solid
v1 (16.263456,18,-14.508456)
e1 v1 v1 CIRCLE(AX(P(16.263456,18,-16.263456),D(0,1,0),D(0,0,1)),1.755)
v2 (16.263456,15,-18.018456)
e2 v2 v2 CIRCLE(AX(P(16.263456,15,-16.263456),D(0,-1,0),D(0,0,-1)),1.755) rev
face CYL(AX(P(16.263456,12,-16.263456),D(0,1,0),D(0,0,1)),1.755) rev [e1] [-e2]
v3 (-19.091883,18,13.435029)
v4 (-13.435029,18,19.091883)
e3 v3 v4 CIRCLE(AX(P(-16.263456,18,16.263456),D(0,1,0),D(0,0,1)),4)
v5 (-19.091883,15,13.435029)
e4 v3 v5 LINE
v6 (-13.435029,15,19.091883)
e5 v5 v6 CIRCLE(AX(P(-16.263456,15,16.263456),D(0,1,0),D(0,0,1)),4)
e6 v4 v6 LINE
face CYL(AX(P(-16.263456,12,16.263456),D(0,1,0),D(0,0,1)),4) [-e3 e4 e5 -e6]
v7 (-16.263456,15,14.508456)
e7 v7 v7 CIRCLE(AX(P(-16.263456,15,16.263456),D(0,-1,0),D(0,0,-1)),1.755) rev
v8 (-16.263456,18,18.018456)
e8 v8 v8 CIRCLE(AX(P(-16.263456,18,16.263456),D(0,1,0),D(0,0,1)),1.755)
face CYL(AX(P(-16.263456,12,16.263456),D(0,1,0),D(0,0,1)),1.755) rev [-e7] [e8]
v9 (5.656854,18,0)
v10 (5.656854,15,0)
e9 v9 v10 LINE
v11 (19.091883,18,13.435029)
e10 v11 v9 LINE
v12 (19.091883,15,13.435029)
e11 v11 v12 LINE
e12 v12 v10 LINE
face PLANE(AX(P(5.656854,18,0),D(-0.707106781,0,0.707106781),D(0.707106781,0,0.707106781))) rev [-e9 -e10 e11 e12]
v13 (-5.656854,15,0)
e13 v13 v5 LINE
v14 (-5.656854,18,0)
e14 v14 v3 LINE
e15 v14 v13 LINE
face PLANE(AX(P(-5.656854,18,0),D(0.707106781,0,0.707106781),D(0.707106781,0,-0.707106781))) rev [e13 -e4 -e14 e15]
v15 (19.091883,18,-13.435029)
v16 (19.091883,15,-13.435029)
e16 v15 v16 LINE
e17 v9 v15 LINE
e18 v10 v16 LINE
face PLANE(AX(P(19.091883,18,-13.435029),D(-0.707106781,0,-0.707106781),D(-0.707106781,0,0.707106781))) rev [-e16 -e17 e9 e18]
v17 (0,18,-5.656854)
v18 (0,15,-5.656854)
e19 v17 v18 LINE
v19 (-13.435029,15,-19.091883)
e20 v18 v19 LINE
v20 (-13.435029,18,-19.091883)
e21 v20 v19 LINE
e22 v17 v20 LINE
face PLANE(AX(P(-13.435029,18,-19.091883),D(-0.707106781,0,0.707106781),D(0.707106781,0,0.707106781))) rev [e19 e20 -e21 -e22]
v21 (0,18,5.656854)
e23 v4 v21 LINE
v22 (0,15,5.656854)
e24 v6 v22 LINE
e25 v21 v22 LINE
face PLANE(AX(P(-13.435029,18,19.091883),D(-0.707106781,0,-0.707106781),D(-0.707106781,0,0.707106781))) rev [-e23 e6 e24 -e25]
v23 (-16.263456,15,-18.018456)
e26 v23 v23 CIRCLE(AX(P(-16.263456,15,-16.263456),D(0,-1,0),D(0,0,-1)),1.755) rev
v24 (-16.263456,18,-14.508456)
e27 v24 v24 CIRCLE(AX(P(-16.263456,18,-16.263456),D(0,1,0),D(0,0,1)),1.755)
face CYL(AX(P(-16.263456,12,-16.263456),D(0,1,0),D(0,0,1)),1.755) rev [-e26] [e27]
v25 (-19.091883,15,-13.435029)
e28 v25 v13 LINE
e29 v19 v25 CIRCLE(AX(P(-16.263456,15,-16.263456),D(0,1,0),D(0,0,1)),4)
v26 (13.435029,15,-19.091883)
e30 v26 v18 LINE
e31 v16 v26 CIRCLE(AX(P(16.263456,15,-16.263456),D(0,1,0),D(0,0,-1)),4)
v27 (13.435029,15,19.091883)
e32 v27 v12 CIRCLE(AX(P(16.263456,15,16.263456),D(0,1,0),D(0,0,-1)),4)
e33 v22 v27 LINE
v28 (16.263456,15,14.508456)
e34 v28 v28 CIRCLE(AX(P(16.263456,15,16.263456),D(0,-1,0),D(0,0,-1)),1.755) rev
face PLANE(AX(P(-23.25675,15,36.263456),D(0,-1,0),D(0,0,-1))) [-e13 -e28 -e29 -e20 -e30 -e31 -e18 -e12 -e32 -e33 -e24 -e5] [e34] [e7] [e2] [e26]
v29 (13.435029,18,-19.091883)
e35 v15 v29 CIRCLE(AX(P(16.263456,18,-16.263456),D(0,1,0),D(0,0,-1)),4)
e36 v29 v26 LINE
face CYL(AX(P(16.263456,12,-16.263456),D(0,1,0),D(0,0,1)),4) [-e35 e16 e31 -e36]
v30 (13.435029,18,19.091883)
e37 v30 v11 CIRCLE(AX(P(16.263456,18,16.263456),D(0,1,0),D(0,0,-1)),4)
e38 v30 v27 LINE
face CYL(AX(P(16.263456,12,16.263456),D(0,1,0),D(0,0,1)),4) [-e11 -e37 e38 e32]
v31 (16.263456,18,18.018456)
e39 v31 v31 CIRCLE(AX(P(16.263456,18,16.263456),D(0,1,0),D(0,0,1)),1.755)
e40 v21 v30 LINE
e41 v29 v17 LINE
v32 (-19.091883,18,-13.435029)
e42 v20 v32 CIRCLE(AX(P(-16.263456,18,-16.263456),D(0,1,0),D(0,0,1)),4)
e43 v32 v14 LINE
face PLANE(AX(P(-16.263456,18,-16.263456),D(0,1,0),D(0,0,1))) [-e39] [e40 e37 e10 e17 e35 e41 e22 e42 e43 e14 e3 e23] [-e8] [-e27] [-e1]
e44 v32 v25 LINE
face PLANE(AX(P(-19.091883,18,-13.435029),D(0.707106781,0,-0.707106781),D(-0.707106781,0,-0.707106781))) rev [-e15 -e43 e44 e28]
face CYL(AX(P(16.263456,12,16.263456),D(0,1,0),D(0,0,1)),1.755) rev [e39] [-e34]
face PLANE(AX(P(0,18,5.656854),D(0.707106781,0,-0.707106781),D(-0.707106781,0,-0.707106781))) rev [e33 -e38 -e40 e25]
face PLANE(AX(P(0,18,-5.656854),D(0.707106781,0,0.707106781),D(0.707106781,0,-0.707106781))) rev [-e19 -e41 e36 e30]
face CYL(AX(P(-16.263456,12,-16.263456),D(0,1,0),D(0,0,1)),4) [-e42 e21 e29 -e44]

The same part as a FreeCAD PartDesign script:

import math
import FreeCAD as App
import Part
import Sketcher

V = App.Vector


def add_polygon(sketch, points):
    """Adds a closed chain of lines whose ends are joined by coincident constraints."""
    first, n = sketch.GeometryCount, len(points)
    for a, b in zip(points, points[1:] + points[:1]):
        sketch.addGeometry(Part.LineSegment(App.Vector(*a, 0), App.Vector(*b, 0)), False)
    for i in range(n):
        sketch.addConstraint(Sketcher.Constraint("Coincident", first + i, 2, first + (i + 1) % n, 1))

doc = App.newDocument("Part")
body = doc.addObject("PartDesign::Body", "Body")

# Sketch on XZ plane
sketch1 = doc.addObject("Sketcher::SketchObject", "Sketch")
body.addObject(sketch1)
sketch1.AttachmentSupport = (doc.XZ_Plane, [""])
sketch1.MapMode = "FlatFace"
sketch1.addGeometry(Part.Circle(V(0, 0, 0), V(0, 0, 1), 12), False)
sketch1.addGeometry(Part.Circle(V(0, 0, 0), V(0, 0, 1), 10), False)
sketch1.addConstraint(Sketcher.Constraint("Coincident", 0, 3, -1, 1))
sketch1.addConstraint(Sketcher.Constraint("Coincident", 1, 3, -1, 1))
sketch1.addConstraint(Sketcher.Constraint("Diameter", 0, 23.8))
sketch1.addConstraint(Sketcher.Constraint("Diameter", 1, 19.8))
pad1 = doc.addObject("PartDesign::Pad", "Pad")
body.addObject(pad1)
pad1.Profile = sketch1
pad1.Length = 15
pad1.Reversed = True

# Sketch on XZ plane
sketch2 = doc.addObject("Sketcher::SketchObject", "Sketch001")
body.addObject(sketch2)
sketch2.AttachmentSupport = (doc.XZ_Plane, [""])
sketch2.MapMode = "FlatFace"
sketch2.addGeometry(Part.Circle(V(0, 0, 0), V(0, 0, 1), 10), False)
sketch2.addConstraint(Sketcher.Constraint("Coincident", 0, 3, -1, 1))
sketch2.addConstraint(Sketcher.Constraint("Diameter", 0, 19.8))
pad2 = doc.addObject("PartDesign::Pad", "Pad001")
body.addObject(pad2)
pad2.Profile = sketch2
pad2.Length = 5.1
pad2.Reversed = True

# Sketch on YZ plane
sketch3 = doc.addObject("Sketcher::SketchObject", "Sketch002")
body.addObject(sketch3)
sketch3.AttachmentSupport = (doc.YZ_Plane, [""])
sketch3.MapMode = "FlatFace"
sketch3.addGeometry(Part.LineSegment(V(15, 0, 0), V(-5, 0, 0)), False)
sketch3.addGeometry(Part.ArcOfCircle(Part.Circle(V(5, 0, 0), V(0, 0, 1), 10), math.radians(180), math.radians(360)), False)
sketch3.addConstraint(Sketcher.Constraint("Coincident", 0, 1, 1, 2))
sketch3.addConstraint(Sketcher.Constraint("Coincident", 1, 1, 0, 2))
sketch3.addConstraint(Sketcher.Constraint("Horizontal", 0))
sketch3.addConstraint(Sketcher.Constraint("PointOnObject", 1, 3, -1))
sketch3.addConstraint(Sketcher.Constraint("PointOnObject", 0, 1, -1))
sketch3.addConstraint(Sketcher.Constraint("Radius", 1, 9.9))
sketch3.addConstraint(Sketcher.Constraint("DistanceX", -1, 1, 0, 1, 15.0))
groove = doc.addObject("PartDesign::Groove", "Groove")
body.addObject(groove)
groove.Profile = sketch3
groove.ReferenceAxis = (sketch3, ["H_Axis"])
groove.Angle = 360

# Sketch on XZ plane
sketch4 = doc.addObject("Sketcher::SketchObject", "Sketch003")
body.addObject(sketch4)
sketch4.AttachmentSupport = (doc.XZ_Plane, [""])
sketch4.MapMode = "FlatFace"
sketch4.AttachmentOffset = App.Placement(V(0, 0, -12), App.Rotation())
sketch4.addGeometry(Part.Circle(V(0, 0, 0), V(0, 0, 1), 19), False)
sketch4.addGeometry(Part.Circle(V(0, 0, 0), V(0, 0, 1), 12), False)
sketch4.addConstraint(Sketcher.Constraint("Coincident", 0, 3, -1, 1))
sketch4.addConstraint(Sketcher.Constraint("Coincident", 1, 3, -1, 1))
sketch4.addConstraint(Sketcher.Constraint("Diameter", 0, 38.0))
sketch4.addConstraint(Sketcher.Constraint("Diameter", 1, 23.8))
pad3 = doc.addObject("PartDesign::Pad", "Pad002")
body.addObject(pad3)
pad3.Profile = sketch4
pad3.Length = 3
pad3.Reversed = True

# Sketch on XZ plane
sketch5 = doc.addObject("Sketcher::SketchObject", "Sketch004")
body.addObject(sketch5)
sketch5.AttachmentSupport = (doc.XZ_Plane, [""])
sketch5.MapMode = "FlatFace"
sketch5.AttachmentOffset = App.Placement(V(0, 0, -15), App.Rotation())
sketch5.addGeometry(Part.Circle(V(0, -15.2, 0), V(0, 0, 1), 1.8), False)
sketch5.addGeometry(Part.Circle(V(-15.2, 0, 0), V(0, 0, 1), 1.8), False)
sketch5.addGeometry(Part.Circle(V(0, 15.2, 0), V(0, 0, 1), 1.8), False)
sketch5.addGeometry(Part.Circle(V(15.2, 0, 0), V(0, 0, 1), 1.8), False)
sketch5.addConstraint(Sketcher.Constraint("Equal", 0, 1))
sketch5.addConstraint(Sketcher.Constraint("Equal", 1, 2))
sketch5.addConstraint(Sketcher.Constraint("Equal", 2, 3))
sketch5.addConstraint(Sketcher.Constraint("Symmetric", 0, 3, 2, 3, -1, 1))
sketch5.addConstraint(Sketcher.Constraint("Symmetric", 1, 3, 3, 3, -1, 1))
sketch5.addConstraint(Sketcher.Constraint("PointOnObject", 0, 3, -2))
sketch5.addConstraint(Sketcher.Constraint("PointOnObject", 1, 3, -1))
sketch5.addConstraint(Sketcher.Constraint("Diameter", 0, 3.51))
sketch5.addConstraint(Sketcher.Constraint("DistanceY", 0, 3, 2, 3, 30.3))
sketch5.addConstraint(Sketcher.Constraint("DistanceX", 1, 3, 3, 3, 30.3))
pocket1 = doc.addObject("PartDesign::Pocket", "Pocket")
body.addObject(pocket1)
pocket1.Profile = sketch5
pocket1.Length = 3
pocket1.Reversed = True

# Sketch on YZ plane
sketch6 = doc.addObject("Sketcher::SketchObject", "Sketch005")
body.addObject(sketch6)
sketch6.AttachmentSupport = (doc.YZ_Plane, [""])
sketch6.MapMode = "FlatFace"
add_polygon(sketch6, [(12, 19), (-4, 19), (-4, -19), (12, -19)])  # lines 0-3
sketch6.addConstraint(Sketcher.Constraint("Horizontal", 0))
sketch6.addConstraint(Sketcher.Constraint("Vertical", 1))
sketch6.addConstraint(Sketcher.Constraint("Horizontal", 2))
sketch6.addConstraint(Sketcher.Constraint("Vertical", 3))
sketch6.addConstraint(Sketcher.Constraint("DistanceY", 1, 2, 1, 1, 38.0))
sketch6.addConstraint(Sketcher.Constraint("DistanceY", -1, 1, 0, 2, 19.0))
sketch6.addConstraint(Sketcher.Constraint("DistanceX", -1, 1, 2, 2, 12.0))
sketch6.addConstraint(Sketcher.Constraint("DistanceX", 0, 2, 0, 1, 16.079994))
pocket2 = doc.addObject("PartDesign::Pocket", "Pocket001")
body.addObject(pocket2)
pocket2.Profile = sketch6
pocket2.Type = "ThroughAll"
pocket2.Midplane = True

# Sketch on XZ plane
sketch7 = doc.addObject("Sketcher::SketchObject", "Sketch006")
body.addObject(sketch7)
sketch7.AttachmentSupport = (doc.XZ_Plane, [""])
sketch7.MapMode = "FlatFace"
sketch7.AttachmentOffset = App.Placement(V(0, 0, -12), App.Rotation())
sketch7.addGeometry(Part.Circle(V(0, 0, 0), V(0, 0, 1), 10), False)
sketch7.addConstraint(Sketcher.Constraint("Coincident", 0, 3, -1, 1))
sketch7.addConstraint(Sketcher.Constraint("Diameter", 0, 19.8))
pad4 = doc.addObject("PartDesign::Pad", "Pad003")
body.addObject(pad4)
pad4.Profile = sketch7
pad4.Length = 3
pad4.Reversed = True

# Sketch on XZ plane
sketch8 = doc.addObject("Sketcher::SketchObject", "Sketch007")
body.addObject(sketch8)
sketch8.AttachmentSupport = (doc.XZ_Plane, [""])
sketch8.MapMode = "FlatFace"
sketch8.AttachmentOffset = App.Placement(V(0, 0, -12), App.Rotation())
add_polygon(sketch8, [(-20, -20), (-20, 20), (20, 20), (20, -20)])  # lines 0-3
sketch8.addGeometry(Part.Circle(V(0, 0, 0), V(0, 0, 1), 19), False)  # 4
sketch8.addConstraint(Sketcher.Constraint("Vertical", 0))
sketch8.addConstraint(Sketcher.Constraint("Horizontal", 1))
sketch8.addConstraint(Sketcher.Constraint("Vertical", 2))
sketch8.addConstraint(Sketcher.Constraint("Horizontal", 3))
sketch8.addConstraint(Sketcher.Constraint("Coincident", 4, 3, -1, 1))
sketch8.addConstraint(Sketcher.Constraint("Symmetric", 0, 2, 2, 2, -1, 1))
sketch8.addConstraint(Sketcher.Constraint("Equal", 3, 0))
sketch8.addConstraint(Sketcher.Constraint("Diameter", 4, 38.0))
sketch8.addConstraint(Sketcher.Constraint("DistanceX", 1, 1, 1, 2, 40.0))
pad5 = doc.addObject("PartDesign::Pad", "Pad004")
body.addObject(pad5)
pad5.Profile = sketch8
pad5.Length = 3
pad5.Reversed = True

# Sketch on XZ plane
sketch9 = doc.addObject("Sketcher::SketchObject", "Sketch008")
body.addObject(sketch9)
sketch9.AttachmentSupport = (doc.XZ_Plane, [""])
sketch9.MapMode = "FlatFace"
sketch9.AttachmentOffset = App.Placement(V(0, 0, -15), App.Rotation())
add_polygon(sketch9, [(-30, -30), (-30, 30), (30, 30), (30, -30)])  # lines 0-3
add_polygon(sketch9, [(20, 20), (-20, 20), (-20, -20), (20, -20)])  # lines 4-7
sketch9.addConstraint(Sketcher.Constraint("Vertical", 0))
sketch9.addConstraint(Sketcher.Constraint("Horizontal", 1))
sketch9.addConstraint(Sketcher.Constraint("Vertical", 2))
sketch9.addConstraint(Sketcher.Constraint("Horizontal", 3))
sketch9.addConstraint(Sketcher.Constraint("Horizontal", 4))
sketch9.addConstraint(Sketcher.Constraint("Vertical", 5))
sketch9.addConstraint(Sketcher.Constraint("Horizontal", 6))
sketch9.addConstraint(Sketcher.Constraint("Vertical", 7))
sketch9.addConstraint(Sketcher.Constraint("Symmetric", 0, 2, 2, 2, -1, 1))
sketch9.addConstraint(Sketcher.Constraint("Symmetric", 4, 2, 6, 2, -1, 1))
sketch9.addConstraint(Sketcher.Constraint("Equal", 3, 0))
sketch9.addConstraint(Sketcher.Constraint("Equal", 6, 5))
sketch9.addConstraint(Sketcher.Constraint("DistanceX", 1, 1, 1, 2, 60.0))
sketch9.addConstraint(Sketcher.Constraint("DistanceX", 4, 2, 4, 1, 40.0))
pad6 = doc.addObject("PartDesign::Pad", "Pad005")
body.addObject(pad6)
pad6.Profile = sketch9
pad6.Length = 3

# Sketch on XZ plane
sketch10 = doc.addObject("Sketcher::SketchObject", "Sketch009")
body.addObject(sketch10)
sketch10.AttachmentSupport = (doc.XZ_Plane, [""])
sketch10.MapMode = "FlatFace"
sketch10.AttachmentOffset = App.Placement(V(0, 0, -15), App.Rotation())
sketch10.addGeometry(Part.Circle(V(-16.3, -16.3, 0), V(0, 0, 1), 1.8), False)
sketch10.addGeometry(Part.Circle(V(-16.3, 16.3, 0), V(0, 0, 1), 1.8), False)
sketch10.addGeometry(Part.Circle(V(16.3, -16.3, 0), V(0, 0, 1), 1.8), False)
sketch10.addGeometry(Part.Circle(V(16.3, 16.3, 0), V(0, 0, 1), 1.8), False)
sketch10.addConstraint(Sketcher.Constraint("Equal", 0, 1))
sketch10.addConstraint(Sketcher.Constraint("Equal", 1, 2))
sketch10.addConstraint(Sketcher.Constraint("Equal", 2, 3))
sketch10.addConstraint(Sketcher.Constraint("Symmetric", 1, 3, 2, 3, -1, 1))
sketch10.addConstraint(Sketcher.Constraint("Symmetric", 0, 3, 3, 3, -1, 1))
sketch10.addConstraint(Sketcher.Constraint("Symmetric", 0, 3, 2, 3, -2))
sketch10.addConstraint(Sketcher.Constraint("Diameter", 0, 3.51))
sketch10.addConstraint(Sketcher.Constraint("DistanceY", 0, 3, 1, 3, 32.526912))
sketch10.addConstraint(Sketcher.Constraint("DistanceX", 0, 3, 2, 3, 32.526912))
pocket3 = doc.addObject("PartDesign::Pocket", "Pocket002")
body.addObject(pocket3)
pocket3.Profile = sketch10
pocket3.Length = 3
pocket3.Reversed = True

# Sketch on XZ plane
sketch11 = doc.addObject("Sketcher::SketchObject", "Sketch010")
body.addObject(sketch11)
sketch11.AttachmentSupport = (doc.XZ_Plane, [""])
sketch11.MapMode = "FlatFace"
sketch11.AttachmentOffset = App.Placement(V(0, 0, -15), App.Rotation())
add_polygon(sketch11, [(-30, -30), (-30, 30), (30, 30), (30, -30)])  # lines 0-3
sketch11.addGeometry(Part.ArcOfCircle(Part.Circle(V(-16.3, 16.3, 0), V(0, 0, 1), 4), math.radians(90), math.radians(180)), False)  # 4
sketch11.addGeometry(Part.LineSegment(V(-20.3, 16.3, 0), V(-20.3, -16.3, 0)), False)  # 5
sketch11.addGeometry(Part.ArcOfCircle(Part.Circle(V(-16.3, -16.3, 0), V(0, 0, 1), 4), math.radians(180), math.radians(270)), False)  # 6
sketch11.addGeometry(Part.LineSegment(V(-16.3, -20.3, 0), V(16.3, -20.3, 0)), False)  # 7
sketch11.addGeometry(Part.ArcOfCircle(Part.Circle(V(16.3, -16.3, 0), V(0, 0, 1), 4), math.radians(-90), math.radians(0)), False)  # 8
sketch11.addGeometry(Part.LineSegment(V(20.3, -16.3, 0), V(20.3, 16.3, 0)), False)  # 9
sketch11.addGeometry(Part.ArcOfCircle(Part.Circle(V(16.3, 16.3, 0), V(0, 0, 1), 4), math.radians(0), math.radians(90)), False)  # 10
sketch11.addGeometry(Part.LineSegment(V(16.3, 20.3, 0), V(-16.3, 20.3, 0)), False)  # 11
sketch11.addConstraint(Sketcher.Constraint("Tangent", 4, 2, 5, 1))
sketch11.addConstraint(Sketcher.Constraint("Tangent", 5, 2, 6, 1))
sketch11.addConstraint(Sketcher.Constraint("Tangent", 6, 2, 7, 1))
sketch11.addConstraint(Sketcher.Constraint("Tangent", 7, 2, 8, 1))
sketch11.addConstraint(Sketcher.Constraint("Tangent", 8, 2, 9, 1))
sketch11.addConstraint(Sketcher.Constraint("Tangent", 9, 2, 10, 1))
sketch11.addConstraint(Sketcher.Constraint("Tangent", 10, 2, 11, 1))
sketch11.addConstraint(Sketcher.Constraint("Tangent", 11, 2, 4, 1))
sketch11.addConstraint(Sketcher.Constraint("Vertical", 0))
sketch11.addConstraint(Sketcher.Constraint("Horizontal", 1))
sketch11.addConstraint(Sketcher.Constraint("Vertical", 2))
sketch11.addConstraint(Sketcher.Constraint("Horizontal", 3))
sketch11.addConstraint(Sketcher.Constraint("Vertical", 5))
sketch11.addConstraint(Sketcher.Constraint("Horizontal", 7))
sketch11.addConstraint(Sketcher.Constraint("Vertical", 9))
sketch11.addConstraint(Sketcher.Constraint("Horizontal", 11))
sketch11.addConstraint(Sketcher.Constraint("Equal", 4, 6))
sketch11.addConstraint(Sketcher.Constraint("Equal", 6, 8))
sketch11.addConstraint(Sketcher.Constraint("Equal", 8, 10))
sketch11.addConstraint(Sketcher.Constraint("Symmetric", 4, 3, 8, 3, -1, 1))
sketch11.addConstraint(Sketcher.Constraint("Symmetric", 0, 2, 2, 2, -1, 1))
sketch11.addConstraint(Sketcher.Constraint("Equal", 3, 0))
sketch11.addConstraint(Sketcher.Constraint("Equal", 11, 5))
sketch11.addConstraint(Sketcher.Constraint("Radius", 4, 4.0))
sketch11.addConstraint(Sketcher.Constraint("DistanceX", 1, 1, 1, 2, 60.0))
sketch11.addConstraint(Sketcher.Constraint("DistanceX", 7, 1, 7, 2, 32.526912))
pocket4 = doc.addObject("PartDesign::Pocket", "Pocket003")
body.addObject(pocket4)
pocket4.Profile = sketch11
pocket4.Length = 3
pocket4.Reversed = True

# Sketch on XZ plane
sketch12 = doc.addObject("Sketcher::SketchObject", "Sketch011")
body.addObject(sketch12)
sketch12.AttachmentSupport = (doc.XZ_Plane, [""])
sketch12.MapMode = "FlatFace"
sketch12.AttachmentOffset = App.Placement(V(0, 0, -18), App.Rotation())
sketch12.addGeometry(Part.LineSegment(V(-19.1, -13.4, 0), V(-5.7, 0, 0)), False)
sketch12.addGeometry(Part.LineSegment(V(-5.7, 0, 0), V(-19.1, 13.4, 0)), False)
sketch12.addGeometry(Part.ArcOfCircle(Part.Circle(V(-16.3, 16.3, 0), V(0, 0, 1), 4), math.radians(45), math.radians(225)), False)
sketch12.addGeometry(Part.LineSegment(V(-13.4, 19.1, 0), V(0, 5.7, 0)), False)
sketch12.addGeometry(Part.LineSegment(V(0, 5.7, 0), V(13.4, 19.1, 0)), False)
sketch12.addGeometry(Part.ArcOfCircle(Part.Circle(V(16.3, 16.3, 0), V(0, 0, 1), 4), math.radians(-45), math.radians(135)), False)
sketch12.addGeometry(Part.LineSegment(V(19.1, 13.4, 0), V(5.7, 0, 0)), False)
sketch12.addGeometry(Part.LineSegment(V(5.7, 0, 0), V(19.1, -13.4, 0)), False)
sketch12.addGeometry(Part.ArcOfCircle(Part.Circle(V(16.3, -16.3, 0), V(0, 0, 1), 4), math.radians(-135), math.radians(45)), False)
sketch12.addGeometry(Part.LineSegment(V(13.4, -19.1, 0), V(0, -5.7, 0)), False)
sketch12.addGeometry(Part.LineSegment(V(0, -5.7, 0), V(-13.4, -19.1, 0)), False)
sketch12.addGeometry(Part.ArcOfCircle(Part.Circle(V(-16.3, -16.3, 0), V(0, 0, 1), 4), math.radians(135), math.radians(315)), False)
sketch12.addGeometry(Part.Circle(V(-16.3, 16.3, 0), V(0, 0, 1), 1.8), False)
sketch12.addGeometry(Part.Circle(V(16.3, 16.3, 0), V(0, 0, 1), 1.8), False)
sketch12.addGeometry(Part.Circle(V(-16.3, -16.3, 0), V(0, 0, 1), 1.8), False)
sketch12.addGeometry(Part.Circle(V(16.3, -16.3, 0), V(0, 0, 1), 1.8), False)
sketch12.addConstraint(Sketcher.Constraint("Coincident", 0, 2, 1, 1))
sketch12.addConstraint(Sketcher.Constraint("Tangent", 1, 2, 2, 2))
sketch12.addConstraint(Sketcher.Constraint("Tangent", 2, 1, 3, 1))
sketch12.addConstraint(Sketcher.Constraint("Coincident", 3, 2, 4, 1))
sketch12.addConstraint(Sketcher.Constraint("Tangent", 4, 2, 5, 2))
sketch12.addConstraint(Sketcher.Constraint("Tangent", 5, 1, 6, 1))
sketch12.addConstraint(Sketcher.Constraint("Coincident", 6, 2, 7, 1))
sketch12.addConstraint(Sketcher.Constraint("Tangent", 7, 2, 8, 2))
sketch12.addConstraint(Sketcher.Constraint("Tangent", 8, 1, 9, 1))
sketch12.addConstraint(Sketcher.Constraint("Coincident", 9, 2, 10, 1))
sketch12.addConstraint(Sketcher.Constraint("Tangent", 10, 2, 11, 2))
sketch12.addConstraint(Sketcher.Constraint("Tangent", 11, 1, 0, 1))
sketch12.addConstraint(Sketcher.Constraint("Coincident", 12, 3, 2, 3))
sketch12.addConstraint(Sketcher.Constraint("Coincident", 13, 3, 5, 3))
sketch12.addConstraint(Sketcher.Constraint("Coincident", 14, 3, 11, 3))
sketch12.addConstraint(Sketcher.Constraint("Coincident", 15, 3, 8, 3))
sketch12.addConstraint(Sketcher.Constraint("Equal", 2, 5))
sketch12.addConstraint(Sketcher.Constraint("Equal", 5, 8))
sketch12.addConstraint(Sketcher.Constraint("Equal", 8, 11))
sketch12.addConstraint(Sketcher.Constraint("Equal", 12, 13))
sketch12.addConstraint(Sketcher.Constraint("Equal", 13, 14))
sketch12.addConstraint(Sketcher.Constraint("Equal", 14, 15))
sketch12.addConstraint(Sketcher.Constraint("Symmetric", 2, 3, 8, 3, -1, 1))
sketch12.addConstraint(Sketcher.Constraint("Symmetric", 5, 3, 11, 3, -1, 1))
sketch12.addConstraint(Sketcher.Constraint("Symmetric", 0, 2, 6, 2, -1, 1))
sketch12.addConstraint(Sketcher.Constraint("Symmetric", 3, 2, 9, 2, -1, 1))
sketch12.addConstraint(Sketcher.Constraint("Symmetric", 2, 3, 5, 3, -2))
sketch12.addConstraint(Sketcher.Constraint("PointOnObject", 0, 2, -1))
sketch12.addConstraint(Sketcher.Constraint("PointOnObject", 3, 2, -2))
sketch12.addConstraint(Sketcher.Constraint("Perpendicular", 0, 1))
sketch12.addConstraint(Sketcher.Constraint("Parallel", 1, 3))
sketch12.addConstraint(Sketcher.Constraint("Equal", 1, 3))
sketch12.addConstraint(Sketcher.Constraint("Radius", 2, 4.0))
sketch12.addConstraint(Sketcher.Constraint("Diameter", 12, 3.51))
sketch12.addConstraint(Sketcher.Constraint("Distance", 0, 19.0))
pad7 = doc.addObject("PartDesign::Pad", "Pad006")
body.addObject(pad7)
pad7.Profile = sketch12
pad7.Length = 3

# Sketch on XY plane
sketch13 = doc.addObject("Sketcher::SketchObject", "Sketch012")
body.addObject(sketch13)
sketch13.AttachmentSupport = (doc.XY_Plane, [""])
sketch13.MapMode = "FlatFace"
sketch13.AttachmentOffset = App.Placement(V(0, 0, 20.263456), App.Rotation())
add_polygon(sketch13, [(-23, 15), (-23, 8), (31, 8), (31, 15)])  # lines 0-3
sketch13.addConstraint(Sketcher.Constraint("Vertical", 0))
sketch13.addConstraint(Sketcher.Constraint("Horizontal", 1))
sketch13.addConstraint(Sketcher.Constraint("Vertical", 2))
sketch13.addConstraint(Sketcher.Constraint("Horizontal", 3))
sketch13.addConstraint(Sketcher.Constraint("DistanceY", -1, 1, 2, 2, 15.0))
sketch13.addConstraint(Sketcher.Constraint("DistanceX", 1, 1, 1, 2, 54.545591))
sketch13.addConstraint(Sketcher.Constraint("DistanceY", 0, 2, 0, 1, 6.512588))
sketch13.addConstraint(Sketcher.Constraint("DistanceX", 0, 2, -1, 1, 23.25675))
pocket5 = doc.addObject("PartDesign::Pocket", "Pocket004")
body.addObject(pocket5)
pocket5.Profile = sketch13
pocket5.Type = "ThroughAll"
pocket5.Midplane = True

doc.recompute()
